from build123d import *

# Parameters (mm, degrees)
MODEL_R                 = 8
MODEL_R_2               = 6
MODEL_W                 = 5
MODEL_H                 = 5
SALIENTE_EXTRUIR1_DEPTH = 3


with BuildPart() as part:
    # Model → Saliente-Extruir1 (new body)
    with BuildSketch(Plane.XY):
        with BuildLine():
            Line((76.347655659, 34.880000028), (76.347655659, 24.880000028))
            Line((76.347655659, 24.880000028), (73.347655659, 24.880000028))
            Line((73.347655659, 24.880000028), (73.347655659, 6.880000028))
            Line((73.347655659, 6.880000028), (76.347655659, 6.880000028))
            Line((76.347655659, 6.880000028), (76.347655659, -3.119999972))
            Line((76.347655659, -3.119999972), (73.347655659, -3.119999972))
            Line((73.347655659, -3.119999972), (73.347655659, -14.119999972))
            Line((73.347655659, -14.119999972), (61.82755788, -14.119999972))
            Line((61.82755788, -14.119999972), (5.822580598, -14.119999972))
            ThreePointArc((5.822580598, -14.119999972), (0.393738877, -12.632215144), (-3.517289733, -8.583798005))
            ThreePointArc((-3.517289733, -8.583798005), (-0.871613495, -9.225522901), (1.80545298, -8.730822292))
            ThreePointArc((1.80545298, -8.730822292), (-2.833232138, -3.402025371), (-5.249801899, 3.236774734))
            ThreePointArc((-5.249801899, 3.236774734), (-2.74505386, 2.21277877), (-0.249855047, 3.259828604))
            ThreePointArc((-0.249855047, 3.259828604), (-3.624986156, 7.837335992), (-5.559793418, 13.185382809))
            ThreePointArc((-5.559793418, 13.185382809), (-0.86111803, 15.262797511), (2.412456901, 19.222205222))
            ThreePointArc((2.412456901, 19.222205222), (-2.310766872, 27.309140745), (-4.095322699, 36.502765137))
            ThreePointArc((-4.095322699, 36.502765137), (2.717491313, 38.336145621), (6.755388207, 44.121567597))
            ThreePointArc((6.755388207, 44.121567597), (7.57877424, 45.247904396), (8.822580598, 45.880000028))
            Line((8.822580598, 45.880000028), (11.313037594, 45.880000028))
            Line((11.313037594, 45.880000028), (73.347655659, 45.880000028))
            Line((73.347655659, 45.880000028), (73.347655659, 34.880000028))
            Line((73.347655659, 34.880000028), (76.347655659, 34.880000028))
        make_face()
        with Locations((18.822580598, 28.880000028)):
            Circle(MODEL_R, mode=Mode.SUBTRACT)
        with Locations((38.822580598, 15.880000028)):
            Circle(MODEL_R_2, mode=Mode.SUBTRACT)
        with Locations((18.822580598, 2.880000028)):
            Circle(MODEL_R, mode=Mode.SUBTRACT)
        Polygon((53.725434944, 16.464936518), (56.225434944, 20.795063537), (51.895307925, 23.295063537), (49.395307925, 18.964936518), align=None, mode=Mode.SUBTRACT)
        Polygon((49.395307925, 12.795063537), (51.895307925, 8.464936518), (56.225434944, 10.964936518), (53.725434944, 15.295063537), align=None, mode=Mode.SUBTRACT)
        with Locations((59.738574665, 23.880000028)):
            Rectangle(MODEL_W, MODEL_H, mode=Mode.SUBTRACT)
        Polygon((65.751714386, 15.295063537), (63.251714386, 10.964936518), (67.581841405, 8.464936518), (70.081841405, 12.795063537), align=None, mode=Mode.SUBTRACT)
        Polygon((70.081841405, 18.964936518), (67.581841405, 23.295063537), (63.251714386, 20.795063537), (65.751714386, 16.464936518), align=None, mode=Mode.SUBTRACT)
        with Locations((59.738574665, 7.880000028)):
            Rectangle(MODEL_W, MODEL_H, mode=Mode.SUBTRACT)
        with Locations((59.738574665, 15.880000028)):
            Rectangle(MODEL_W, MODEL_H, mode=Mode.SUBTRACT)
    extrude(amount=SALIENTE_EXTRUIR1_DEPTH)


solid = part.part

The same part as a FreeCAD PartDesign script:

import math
import FreeCAD as App
import Part
import Sketcher

V = App.Vector
Q = App.Units.Quantity


def add_polygon(sketch, points):
    """Adds a closed chain of lines whose ends are joined by coincident constraints."""
    first, n = sketch.GeometryCount, len(points)
    for a, b in zip(points, points[1:] + points[:1]):
        sketch.addGeometry(Part.LineSegment(App.Vector(*a, 0), App.Vector(*b, 0)), False)
    for i in range(n):
        sketch.addConstraint(Sketcher.Constraint("Coincident", first + i, 2, first + (i + 1) % n, 1))

doc = App.newDocument("Part")
body = doc.addObject("PartDesign::Body", "Body")

# Sketch on XY plane
sketch1 = body.newObject("Sketcher::SketchObject", "Sketch")
sketch1.AttachmentSupport = (doc.getObject("XY_Plane"), [""])
sketch1.MapMode = "FlatFace"
sketch1.addGeometry(Part.LineSegment(V(76.3, 24.9, 0), V(76.3, 34.9, 0)), False)  # 0
sketch1.addGeometry(Part.LineSegment(V(76.3, 34.9, 0), V(73.3, 34.9, 0)), False)  # 1
sketch1.addGeometry(Part.LineSegment(V(73.3, 34.9, 0), V(73.3, 45.9, 0)), False)  # 2
sketch1.addGeometry(Part.LineSegment(V(73.3, 45.9, 0), V(8.8, 45.9, 0)), False)  # 3
sketch1.addGeometry(Part.ArcOfCircle(Part.Circle(V(9.5, 43, 0), V(0, 0, 1), 3), math.radians(103), math.radians(157)), False)  # 4
sketch1.addGeometry(Part.ArcOfCircle(Part.Circle(V(-3.2, 46.8, 0), V(0, 0, 1), 10.3), math.radians(-95), math.radians(-15)), False)  # 5
sketch1.addGeometry(Part.ArcOfCircle(Part.Circle(V(23.8, 37.2, 0), V(0, 0, 1), 27.9), math.radians(-179), math.radians(-140)), False)  # 6
sketch1.addGeometry(Part.ArcOfCircle(Part.Circle(V(-7.6, 24.2, 0), V(0, 0, 1), 11.2), math.radians(-79), math.radians(-26)), False)  # 7
sketch1.addGeometry(Part.ArcOfCircle(Part.Circle(V(13.8, 17.2, 0), V(0, 0, 1), 19.8), math.radians(-168), math.radians(-135)), False)  # 8
sketch1.addGeometry(Part.ArcOfCircle(Part.Circle(V(-2.8, 5.7, 0), V(0, 0, 1), 3.5), math.radians(-135), math.radians(-45)), False)  # 9
sketch1.addGeometry(Part.ArcOfCircle(Part.Circle(V(13.8, 6.4, 0), V(0, 0, 1), 19.3), math.radians(-171), math.radians(-128)), False)  # 10
sketch1.addGeometry(Part.ArcOfCircle(Part.Circle(V(-0.7, -2.7, 0), V(0, 0, 1), 6.5), math.radians(-116), math.radians(-67)), False)  # 11
sketch1.addGeometry(Part.ArcOfCircle(Part.Circle(V(5.8, -3.5, 0), V(0, 0, 1), 10.6), math.radians(-151), math.radians(-90)), False)  # 12
sketch1.addGeometry(Part.LineSegment(V(5.8, -14.1, 0), V(73.3, -14.1, 0)), False)  # 13
sketch1.addGeometry(Part.LineSegment(V(73.3, -14.1, 0), V(73.3, -3.1, 0)), False)  # 14
sketch1.addGeometry(Part.LineSegment(V(73.3, -3.1, 0), V(76.3, -3.1, 0)), False)  # 15
sketch1.addGeometry(Part.LineSegment(V(76.3, -3.1, 0), V(76.3, 6.9, 0)), False)  # 16
sketch1.addGeometry(Part.LineSegment(V(76.3, 6.9, 0), V(73.3, 6.9, 0)), False)  # 17
sketch1.addGeometry(Part.LineSegment(V(73.3, 6.9, 0), V(73.3, 24.9, 0)), False)  # 18
sketch1.addGeometry(Part.LineSegment(V(73.3, 24.9, 0), V(76.3, 24.9, 0)), False)  # 19
add_polygon(sketch1, [(57.2, 5.4), (57.2, 10.4), (62.2, 10.4), (62.2, 5.4)])  # lines 20-23
add_polygon(sketch1, [(65.8, 15.3), (70.1, 12.8), (67.6, 8.5), (63.3, 11)])  # lines 24-27
add_polygon(sketch1, [(49.4, 12.8), (53.7, 15.3), (56.2, 11), (51.9, 8.5)])  # lines 28-31
sketch1.addGeometry(Part.Circle(V(18.8, 2.9, 0), V(0, 0, 1), 8), False)  # 32
add_polygon(sketch1, [(70.1, 19), (65.8, 16.5), (63.3, 20.8), (67.6, 23.3)])  # lines 33-36
add_polygon(sketch1, [(57.2, 13.4), (57.2, 18.4), (62.2, 18.4), (62.2, 13.4)])  # lines 37-40
add_polygon(sketch1, [(57.2, 21.4), (57.2, 26.4), (62.2, 26.4), (62.2, 21.4)])  # lines 41-44
add_polygon(sketch1, [(53.7, 16.5), (49.4, 19), (51.9, 23.3), (56.2, 20.8)])  # lines 45-48
sketch1.addGeometry(Part.Circle(V(38.8, 15.9, 0), V(0, 0, 1), 6), False)  # 49
sketch1.addGeometry(Part.Circle(V(18.8, 28.9, 0), V(0, 0, 1), 8), False)  # 50
sketch1.addConstraint([
    Sketcher.Constraint("Coincident", 0, 2, 1, 1),
    Sketcher.Constraint("Coincident", 1, 2, 2, 1),
    Sketcher.Constraint("Coincident", 2, 2, 3, 1),
    Sketcher.Constraint("Coincident", 3, 2, 4, 1),
    Sketcher.Constraint("Coincident", 4, 2, 5, 2),
    Sketcher.Constraint("Coincident", 5, 1, 6, 1),
    Sketcher.Constraint("Coincident", 6, 2, 7, 2),
    Sketcher.Constraint("Coincident", 7, 1, 8, 1),
    Sketcher.Constraint("Coincident", 8, 2, 9, 2),
    Sketcher.Constraint("Coincident", 9, 1, 10, 1),
    Sketcher.Constraint("Coincident", 10, 2, 11, 2),
    Sketcher.Constraint("Coincident", 11, 1, 12, 1),
    Sketcher.Constraint("Coincident", 12, 2, 13, 1),
    Sketcher.Constraint("Coincident", 13, 2, 14, 1),
    Sketcher.Constraint("Coincident", 14, 2, 15, 1),
    Sketcher.Constraint("Coincident", 15, 2, 16, 1),
    Sketcher.Constraint("Coincident", 16, 2, 17, 1),
    Sketcher.Constraint("Coincident", 17, 2, 18, 1),
    Sketcher.Constraint("Coincident", 18, 2, 19, 1),
    Sketcher.Constraint("Coincident", 19, 2, 0, 1),
    Sketcher.Constraint("Vertical", 0),
    Sketcher.Constraint("Horizontal", 1),
    Sketcher.Constraint("Vertical", 2),
    Sketcher.Constraint("Horizontal", 3),
    Sketcher.Constraint("Horizontal", 13),
    Sketcher.Constraint("Vertical", 14),
    Sketcher.Constraint("Horizontal", 15),
    Sketcher.Constraint("Vertical", 16),
    Sketcher.Constraint("Horizontal", 17),
    Sketcher.Constraint("Vertical", 18),
    Sketcher.Constraint("Horizontal", 19),
    Sketcher.Constraint("Vertical", 20),
    Sketcher.Constraint("Horizontal", 21),
    Sketcher.Constraint("Vertical", 22),
    Sketcher.Constraint("Horizontal", 23),
    Sketcher.Constraint("Vertical", 37),
    Sketcher.Constraint("Horizontal", 38),
    Sketcher.Constraint("Vertical", 39),
    Sketcher.Constraint("Horizontal", 40),
    Sketcher.Constraint("Vertical", 41),
    Sketcher.Constraint("Horizontal", 42),
    Sketcher.Constraint("Vertical", 43),
    Sketcher.Constraint("Horizontal", 44),
    Sketcher.Constraint("Equal", 32, 50),
    Sketcher.Constraint("Perpendicular", 24, 25),
    Sketcher.Constraint("Perpendicular", 25, 26),
    Sketcher.Constraint("Perpendicular", 26, 27),
    Sketcher.Constraint("Perpendicular", 28, 29),
    Sketcher.Constraint("Perpendicular", 29, 30),
    Sketcher.Constraint("Perpendicular", 30, 31),
    Sketcher.Constraint("Perpendicular", 31, 33),
    Sketcher.Constraint("Perpendicular", 33, 34),
    Sketcher.Constraint("Perpendicular", 34, 35),
    Sketcher.Constraint("Perpendicular", 35, 36),
    Sketcher.Constraint("Perpendicular", 27, 45),
    Sketcher.Constraint("Perpendicular", 45, 46),
    Sketcher.Constraint("Perpendicular", 46, 47),
    Sketcher.Constraint("Perpendicular", 47, 48),
    Sketcher.Constraint("Horizontal", 27, 2, 28, 2),
    Sketcher.Constraint("Horizontal", 26, 2, 29, 2),
    Sketcher.Constraint("Horizontal", 25, 2, 30, 2),
    Sketcher.Constraint("Horizontal", 36, 2, 45, 2),
    Sketcher.Constraint("Horizontal", 35, 2, 46, 2),
    Sketcher.Constraint("Horizontal", 34, 2, 47, 2),
    Sketcher.Constraint("Vertical", 32, 3, 50, 3),
    Sketcher.Constraint("Vertical", 2, 2, 13, 2),
    Sketcher.Constraint("Vertical", 0, 2, 15, 2),
    Sketcher.Constraint("Vertical", 14, 2, 17, 2),
    Sketcher.Constraint("Vertical", 27, 2, 33, 2),
    Sketcher.Constraint("Vertical", 26, 2, 34, 2),
    Sketcher.Constraint("Vertical", 25, 2, 35, 2),
    Sketcher.Constraint("Vertical", 23, 2, 37, 2),
    Sketcher.Constraint("Vertical", 22, 2, 38, 2),
    Sketcher.Constraint("Vertical", 40, 2, 41, 2),
    Sketcher.Constraint("Vertical", 39, 2, 42, 2),
    Sketcher.Constraint("Vertical", 31, 2, 45, 2),
    Sketcher.Constraint("Vertical", 30, 2, 46, 2),
    Sketcher.Constraint("Equal", 2, 14),
    Sketcher.Constraint("Equal", 0, 16),
    Sketcher.Constraint("Equal", 44, 20),
    Sketcher.Constraint("Equal", 22, 37),
    Sketcher.Constraint("Equal", 39, 41),
    Sketcher.Constraint("Equal", 24, 25),
    Sketcher.Constraint("Diameter", 32, Q("16 mm")),
    Sketcher.Constraint("Diameter", 49, Q("12 mm")),
    Sketcher.Constraint("Radius", 4, Q("3 mm")),
    Sketcher.Constraint("DistanceX", 1, 2, 1, 1, Q("3 mm")),
    Sketcher.Constraint("DistanceX", 21, 1, 21, 2, Q("5 mm")),
    Sketcher.Constraint("DistanceY", 0, 1, 0, 2, Q("10 mm")),
    Sketcher.Constraint("DistanceY", 2, 1, 2, 2, Q("11 mm")),
    Sketcher.Constraint("DistanceY", 18, 1, 18, 2, Q("18 mm")),
    Sketcher.Constraint("Angle", 24, Q("-30 deg")),
    Sketcher.Constraint("Distance", 24, Q("5 mm")),
    Sketcher.Constraint("DistanceX", 32, 3, 49, 3, Q("20 mm")),
    Sketcher.Constraint("DistanceY", 32, 3, 49, 3, Q("13 mm")),
    Sketcher.Constraint("DistanceY", 49, 3, 50, 3, Q("13 mm")),
    Sketcher.Constraint("DistanceY", 49, 3, 0, 2, Q("19 mm")),
    Sketcher.Constraint("DistanceX", 3, 2, 50, 3, Q("10 mm")),
    Sketcher.Constraint("DistanceY", 25, 2, 33, 2, Q("8 mm")),
    Sketcher.Constraint("DistanceY", 20, 2, 37, 2, Q("8 mm")),
    Sketcher.Constraint("DistanceY", 37, 2, 41, 2, Q("8 mm")),
    Sketcher.Constraint("DistanceY", 17, 2, 20, 2, Q("3.5 mm")),
    Sketcher.Constraint("DistanceY", -1, 1, 32, 3, Q("2.88 mm")),
    Sketcher.Constraint("Radius", 7, Q("11.18034 mm")),
    Sketcher.Constraint("Radius", 8, Q("19.801309 mm")),
    Sketcher.Constraint("Radius", 5, Q("10.307764 mm")),
    Sketcher.Constraint("Radius", 6, Q("27.930966 mm")),
    Sketcher.Constraint("Radius", 9, Q("3.535534 mm")),
    Sketcher.Constraint("Radius", 10, Q("19.349935 mm")),
    Sketcher.Constraint("Radius", 11, Q("6.519202 mm")),
    Sketcher.Constraint("Radius", 12, Q("10.644704 mm")),
    Sketcher.Constraint("DistanceY", 10, 3, 4, 3, Q("36.537998 mm")),
    Sketcher.Constraint("DistanceX", -1, 1, 10, 3, Q("13.835702 mm")),
    Sketcher.Constraint("DistanceX", 9, 1, -1, 1, Q("5.249802 mm")),
    Sketcher.Constraint("DistanceY", 11, 1, -1, 1, Q("8.583798 mm")),
    Sketcher.Constraint("DistanceY", 9, 3, 5, 3, Q("41.023799 mm")),
    Sketcher.Constraint("DistanceY", 10, 3, 6, 3, Q("30.728102 mm")),
    Sketcher.Constraint("DistanceX", 9, 3, 8, 2, Q("2.5115 mm")),
    Sketcher.Constraint("DistanceY", 9, 1, 9, 3, Q("2.5115 mm")),
    Sketcher.Constraint("DistanceX", 9, 1, 12, 3, Q("11.071299 mm")),
    Sketcher.Constraint("DistanceX", 3, 2, 3, 1, Q("64.525075 mm")),
    Sketcher.Constraint("DistanceX", 13, 1, 13, 2, Q("67.525075 mm")),
    Sketcher.Constraint("DistanceY", -1, 1, 6, 3, Q("37.152909 mm")),
    Sketcher.Constraint("DistanceX", 7, 3, -1, 1, Q("7.610491 mm")),
    Sketcher.Constraint("DistanceX", -1, 1, 8, 3, Q("13.83483 mm")),
    Sketcher.Constraint("DistanceX", 11, 3, -1, 1, Q("0.691609 mm")),
    Sketcher.Constraint("DistanceX", -1, 1, 32, 3, Q("18.822581 mm")),
    Sketcher.Constraint("DistanceX", -1, 1, 4, 2, Q("6.755388 mm")),
    Sketcher.Constraint("DistanceX", -1, 1, 24, 2, Q("70.081841 mm")),
    Sketcher.Constraint("DistanceX", 4, 3, 6, 3, Q("14.30551 mm")),
    Sketcher.Constraint("DistanceY", 7, 3, 5, 3, Q("22.59603 mm")),
    Sketcher.Constraint("DistanceX", 20, 2, 17, 2, Q("16.109081 mm")),
    Sketcher.Constraint("DistanceX", 28, 2, 20, 2, Q("3.51314 mm")),
    Sketcher.Constraint("DistanceY", -1, 1, 24, 2, Q("12.795064 mm")),
])
pad1 = body.newObject("PartDesign::Pad", "Pad")
pad1.Profile = sketch1
pad1.Length = 3

doc.recompute()
